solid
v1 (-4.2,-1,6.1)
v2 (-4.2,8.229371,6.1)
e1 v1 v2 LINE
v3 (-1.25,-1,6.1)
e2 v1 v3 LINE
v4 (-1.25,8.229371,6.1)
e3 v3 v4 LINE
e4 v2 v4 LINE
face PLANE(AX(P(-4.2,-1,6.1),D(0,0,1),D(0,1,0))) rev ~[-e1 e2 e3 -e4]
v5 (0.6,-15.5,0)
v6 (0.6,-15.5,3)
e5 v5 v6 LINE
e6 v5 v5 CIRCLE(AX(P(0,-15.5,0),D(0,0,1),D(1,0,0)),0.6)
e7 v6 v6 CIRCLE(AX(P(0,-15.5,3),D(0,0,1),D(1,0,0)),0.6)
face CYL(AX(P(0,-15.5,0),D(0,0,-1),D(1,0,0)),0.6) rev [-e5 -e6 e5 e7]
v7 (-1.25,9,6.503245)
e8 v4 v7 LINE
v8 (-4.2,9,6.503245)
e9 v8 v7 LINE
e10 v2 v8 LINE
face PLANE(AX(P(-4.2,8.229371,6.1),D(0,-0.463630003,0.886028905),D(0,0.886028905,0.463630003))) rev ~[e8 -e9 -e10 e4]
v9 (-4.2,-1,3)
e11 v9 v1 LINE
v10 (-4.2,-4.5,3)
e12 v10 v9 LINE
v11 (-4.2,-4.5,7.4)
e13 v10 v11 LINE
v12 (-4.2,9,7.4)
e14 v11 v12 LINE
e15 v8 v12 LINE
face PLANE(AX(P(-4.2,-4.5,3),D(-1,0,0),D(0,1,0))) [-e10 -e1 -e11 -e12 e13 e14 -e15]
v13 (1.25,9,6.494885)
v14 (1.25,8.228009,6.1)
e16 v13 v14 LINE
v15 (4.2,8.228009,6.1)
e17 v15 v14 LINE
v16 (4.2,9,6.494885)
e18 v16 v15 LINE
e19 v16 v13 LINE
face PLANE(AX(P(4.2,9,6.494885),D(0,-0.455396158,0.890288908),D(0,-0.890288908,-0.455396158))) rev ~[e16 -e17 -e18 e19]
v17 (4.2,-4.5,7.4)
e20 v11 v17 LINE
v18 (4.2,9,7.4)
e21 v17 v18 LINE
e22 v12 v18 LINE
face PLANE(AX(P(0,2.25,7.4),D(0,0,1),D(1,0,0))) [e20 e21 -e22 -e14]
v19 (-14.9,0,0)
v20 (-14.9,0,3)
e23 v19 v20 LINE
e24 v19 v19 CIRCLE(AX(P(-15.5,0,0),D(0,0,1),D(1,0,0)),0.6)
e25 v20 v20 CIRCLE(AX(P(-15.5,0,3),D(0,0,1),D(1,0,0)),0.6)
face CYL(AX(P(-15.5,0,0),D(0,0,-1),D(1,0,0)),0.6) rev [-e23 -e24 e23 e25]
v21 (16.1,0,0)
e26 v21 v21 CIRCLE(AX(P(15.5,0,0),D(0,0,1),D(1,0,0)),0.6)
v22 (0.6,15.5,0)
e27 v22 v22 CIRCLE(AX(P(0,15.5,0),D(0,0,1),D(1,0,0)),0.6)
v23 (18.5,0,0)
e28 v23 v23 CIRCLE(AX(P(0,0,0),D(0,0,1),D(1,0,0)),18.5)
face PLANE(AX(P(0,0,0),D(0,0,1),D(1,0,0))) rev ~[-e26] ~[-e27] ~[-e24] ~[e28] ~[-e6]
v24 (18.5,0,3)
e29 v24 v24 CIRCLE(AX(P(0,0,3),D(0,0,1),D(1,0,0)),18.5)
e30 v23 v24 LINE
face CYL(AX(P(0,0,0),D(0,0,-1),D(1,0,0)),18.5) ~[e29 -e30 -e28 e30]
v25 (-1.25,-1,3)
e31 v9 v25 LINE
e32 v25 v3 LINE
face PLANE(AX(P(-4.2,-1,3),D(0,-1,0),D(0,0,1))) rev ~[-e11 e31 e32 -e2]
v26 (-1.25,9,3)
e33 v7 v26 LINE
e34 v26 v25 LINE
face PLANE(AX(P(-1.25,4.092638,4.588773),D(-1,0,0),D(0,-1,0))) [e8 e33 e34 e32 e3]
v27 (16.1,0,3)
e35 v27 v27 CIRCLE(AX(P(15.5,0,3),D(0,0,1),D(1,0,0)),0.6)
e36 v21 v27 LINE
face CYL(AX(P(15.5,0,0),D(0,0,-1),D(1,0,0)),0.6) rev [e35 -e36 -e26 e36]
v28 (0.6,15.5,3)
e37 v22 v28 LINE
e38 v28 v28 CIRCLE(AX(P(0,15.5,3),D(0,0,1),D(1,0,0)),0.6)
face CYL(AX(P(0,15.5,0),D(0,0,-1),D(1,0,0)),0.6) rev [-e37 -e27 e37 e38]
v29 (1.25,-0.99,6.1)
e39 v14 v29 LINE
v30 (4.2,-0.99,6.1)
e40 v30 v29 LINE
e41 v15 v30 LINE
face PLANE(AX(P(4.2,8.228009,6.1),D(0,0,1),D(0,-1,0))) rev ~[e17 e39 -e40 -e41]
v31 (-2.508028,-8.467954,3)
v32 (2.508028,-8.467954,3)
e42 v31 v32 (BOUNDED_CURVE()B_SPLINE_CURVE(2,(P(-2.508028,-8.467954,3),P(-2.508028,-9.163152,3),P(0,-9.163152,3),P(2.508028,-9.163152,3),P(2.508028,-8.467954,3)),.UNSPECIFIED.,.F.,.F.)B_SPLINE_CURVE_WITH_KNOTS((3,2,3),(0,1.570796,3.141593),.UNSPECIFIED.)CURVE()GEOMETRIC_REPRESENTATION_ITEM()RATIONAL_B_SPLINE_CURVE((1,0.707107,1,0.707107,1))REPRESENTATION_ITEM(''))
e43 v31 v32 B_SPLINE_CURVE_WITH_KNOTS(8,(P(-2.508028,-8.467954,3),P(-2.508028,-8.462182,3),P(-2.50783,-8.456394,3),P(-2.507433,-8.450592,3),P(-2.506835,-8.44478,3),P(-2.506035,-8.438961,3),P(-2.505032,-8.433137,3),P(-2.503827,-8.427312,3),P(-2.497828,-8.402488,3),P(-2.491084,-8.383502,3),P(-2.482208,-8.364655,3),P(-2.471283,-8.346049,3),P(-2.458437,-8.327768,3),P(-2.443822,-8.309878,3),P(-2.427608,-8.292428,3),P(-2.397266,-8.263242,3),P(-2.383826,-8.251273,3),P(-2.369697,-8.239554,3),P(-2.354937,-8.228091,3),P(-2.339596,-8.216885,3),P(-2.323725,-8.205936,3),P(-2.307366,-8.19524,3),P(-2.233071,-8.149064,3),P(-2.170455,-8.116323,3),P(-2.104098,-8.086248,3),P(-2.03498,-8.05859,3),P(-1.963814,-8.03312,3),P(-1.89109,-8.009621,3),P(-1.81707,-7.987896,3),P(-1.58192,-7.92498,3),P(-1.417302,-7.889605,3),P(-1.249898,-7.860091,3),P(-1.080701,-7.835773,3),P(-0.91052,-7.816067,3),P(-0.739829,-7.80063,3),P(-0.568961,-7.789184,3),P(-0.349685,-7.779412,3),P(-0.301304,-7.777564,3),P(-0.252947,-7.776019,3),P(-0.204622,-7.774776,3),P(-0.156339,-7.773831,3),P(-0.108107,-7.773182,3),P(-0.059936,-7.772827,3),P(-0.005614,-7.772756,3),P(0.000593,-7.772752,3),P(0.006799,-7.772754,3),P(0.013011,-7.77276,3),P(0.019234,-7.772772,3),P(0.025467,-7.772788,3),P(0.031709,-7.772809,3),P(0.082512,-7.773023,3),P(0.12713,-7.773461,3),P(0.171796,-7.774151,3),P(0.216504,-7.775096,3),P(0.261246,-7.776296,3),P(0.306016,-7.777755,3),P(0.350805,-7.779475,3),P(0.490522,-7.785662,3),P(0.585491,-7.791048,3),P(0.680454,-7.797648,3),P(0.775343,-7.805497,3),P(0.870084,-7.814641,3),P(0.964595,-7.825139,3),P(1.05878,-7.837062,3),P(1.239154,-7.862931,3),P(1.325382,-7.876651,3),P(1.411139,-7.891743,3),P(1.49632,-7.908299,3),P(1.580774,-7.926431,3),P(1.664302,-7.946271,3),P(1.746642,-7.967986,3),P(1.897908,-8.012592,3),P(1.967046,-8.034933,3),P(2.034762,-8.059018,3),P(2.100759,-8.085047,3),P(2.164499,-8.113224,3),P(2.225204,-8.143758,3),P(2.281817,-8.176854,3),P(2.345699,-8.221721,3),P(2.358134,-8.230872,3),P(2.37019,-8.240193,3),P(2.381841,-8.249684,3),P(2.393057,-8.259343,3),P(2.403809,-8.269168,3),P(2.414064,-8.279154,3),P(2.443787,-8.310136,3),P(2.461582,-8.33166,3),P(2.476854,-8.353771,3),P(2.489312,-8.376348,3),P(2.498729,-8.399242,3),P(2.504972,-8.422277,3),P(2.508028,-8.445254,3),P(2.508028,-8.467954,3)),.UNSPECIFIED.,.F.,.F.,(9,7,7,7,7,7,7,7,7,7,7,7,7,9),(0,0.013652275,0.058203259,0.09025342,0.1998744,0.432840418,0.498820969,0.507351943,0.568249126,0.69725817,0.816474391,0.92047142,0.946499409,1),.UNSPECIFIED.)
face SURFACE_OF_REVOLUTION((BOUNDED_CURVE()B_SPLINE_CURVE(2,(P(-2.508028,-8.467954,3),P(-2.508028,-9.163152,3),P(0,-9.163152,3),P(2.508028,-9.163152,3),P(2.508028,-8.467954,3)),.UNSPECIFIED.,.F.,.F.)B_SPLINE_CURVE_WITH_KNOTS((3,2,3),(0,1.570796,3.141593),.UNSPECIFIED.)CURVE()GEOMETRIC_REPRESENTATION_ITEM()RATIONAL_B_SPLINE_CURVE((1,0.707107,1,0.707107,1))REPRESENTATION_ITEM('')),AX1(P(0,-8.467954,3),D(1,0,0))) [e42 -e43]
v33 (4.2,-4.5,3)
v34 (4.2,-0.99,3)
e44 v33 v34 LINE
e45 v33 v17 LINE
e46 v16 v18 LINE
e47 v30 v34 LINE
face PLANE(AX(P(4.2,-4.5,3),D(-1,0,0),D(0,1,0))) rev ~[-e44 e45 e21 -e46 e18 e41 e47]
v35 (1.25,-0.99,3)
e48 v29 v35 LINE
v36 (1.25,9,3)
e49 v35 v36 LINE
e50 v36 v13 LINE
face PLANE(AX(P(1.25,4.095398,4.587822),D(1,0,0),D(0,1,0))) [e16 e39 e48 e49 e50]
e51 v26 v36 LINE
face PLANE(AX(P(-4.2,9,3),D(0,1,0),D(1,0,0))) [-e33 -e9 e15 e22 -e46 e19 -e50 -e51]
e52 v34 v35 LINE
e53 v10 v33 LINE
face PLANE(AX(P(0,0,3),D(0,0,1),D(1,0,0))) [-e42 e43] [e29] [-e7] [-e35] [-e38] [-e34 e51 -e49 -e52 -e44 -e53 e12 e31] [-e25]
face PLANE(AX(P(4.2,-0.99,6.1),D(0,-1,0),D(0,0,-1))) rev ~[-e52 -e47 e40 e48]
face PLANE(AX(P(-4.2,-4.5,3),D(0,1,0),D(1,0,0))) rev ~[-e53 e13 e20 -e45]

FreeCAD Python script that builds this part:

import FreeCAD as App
import Part
import Sketcher


def add_polygon(sketch, points):
    """Adds a closed chain of lines whose ends are joined by coincident constraints."""
    first, n = sketch.GeometryCount, len(points)
    for a, b in zip(points, points[1:] + points[:1]):
        sketch.addGeometry(Part.LineSegment(App.Vector(*a, 0), App.Vector(*b, 0)), False)
    for i in range(n):
        sketch.addConstraint(Sketcher.Constraint("Coincident", first + i, 2, first + (i + 1) % n, 1))

doc = App.newDocument("Part")
body = doc.addObject("PartDesign::Body", "Body")

# Sketch on XY plane
sketch1 = body.newObject("Sketcher::SketchObject", "Sketch")
sketch1.AttachmentSupport = (doc.getObject("XY_Plane"), [""])
sketch1.MapMode = "FlatFace"
sketch1.addGeometry([
    Part.Circle(App.Vector(0, 0, 0), App.Vector(0, 0, 1), 18.5),  # 0
    Part.Circle(App.Vector(0, -15.5, 0), App.Vector(0, 0, 1), 0.6),  # 1
    Part.Circle(App.Vector(-15.5, 0, 0), App.Vector(0, 0, 1), 0.6),  # 2
    Part.Circle(App.Vector(0, 15.5, 0), App.Vector(0, 0, 1), 0.6),  # 3
    Part.Circle(App.Vector(15.5, 0, 0), App.Vector(0, 0, 1), 0.6),  # 4
], False)
sketch1.addConstraint([
    Sketcher.Constraint("Coincident", 0, 3, -1, 1),
    Sketcher.Constraint("Equal", 1, 2),
    Sketcher.Constraint("Equal", 2, 3),
    Sketcher.Constraint("Equal", 3, 4),
    Sketcher.Constraint("Symmetric", 1, 3, 3, 3, -1, 1),
    Sketcher.Constraint("Symmetric", 2, 3, 4, 3, -1, 1),
    Sketcher.Constraint("PointOnObject", 1, 3, -2),
    Sketcher.Constraint("PointOnObject", 2, 3, -1),
    Sketcher.Constraint("Diameter", 0, 37.0),
    Sketcher.Constraint("Diameter", 1, 1.2),
    Sketcher.Constraint("DistanceY", 1, 3, 3, 3, 31.0),
    Sketcher.Constraint("DistanceX", 2, 3, 4, 3, 31.0),
])
pad1 = body.newObject("PartDesign::Pad", "Pad")
pad1.Profile = sketch1
pad1.Length = 3

# Sketch on XY plane
sketch2 = body.newObject("Sketcher::SketchObject", "Sketch001")
sketch2.AttachmentSupport = (doc.getObject("XY_Plane"), [""])
sketch2.MapMode = "FlatFace"
sketch2.AttachmentOffset = App.Placement(App.Vector(0, 0, 3), App.Rotation())
add_polygon(sketch2, [(-4.2, 9), (-4.2, -4.5), (4.2, -4.5), (4.2, 9)])  # lines 0-3
sketch2.addConstraint([
    Sketcher.Constraint("Vertical", 0),
    Sketcher.Constraint("Horizontal", 1),
    Sketcher.Constraint("Vertical", 2),
    Sketcher.Constraint("Horizontal", 3),
    Sketcher.Constraint("DistanceX", 1, 1, 1, 2, 8.4),
    Sketcher.Constraint("DistanceY", 0, 2, 0, 1, 13.5),
    Sketcher.Constraint("DistanceY", -1, 1, 2, 2, 9.0),
    Sketcher.Constraint("DistanceX", 0, 2, -1, 1, 4.2),
])
pad2 = body.newObject("PartDesign::Pad", "Pad001")
pad2.Profile = sketch2
pad2.Length = 4.4

# Sketch on YZ plane
sketch3 = body.newObject("Sketcher::SketchObject", "Sketch002")
sketch3.AttachmentSupport = (doc.getObject("YZ_Plane"), [""])
sketch3.MapMode = "FlatFace"
sketch3.AttachmentOffset = App.Placement(App.Vector(0, 0, -4.2), App.Rotation())
add_polygon(sketch3, [(9, 3), (-1, 3), (-1, 6.1), (8.229371, 6.1), (9, 6.503245)])  # lines 0-4
sketch3.addConstraint([
    Sketcher.Constraint("Horizontal", 0),
    Sketcher.Constraint("Vertical", 1),
    Sketcher.Constraint("Horizontal", 2),
    Sketcher.Constraint("Vertical", 4),
    Sketcher.Constraint("DistanceX", 0, 2, 0, 1, 10.0),
    Sketcher.Constraint("DistanceY", 1, 1, 1, 2, 3.1),
    Sketcher.Constraint("DistanceX", 0, 2, -1, 1, 1.0),
    Sketcher.Constraint("DistanceY", -1, 1, 0, 2, 3.0),
    Sketcher.Constraint("DistanceX", 2, 1, 2, 2, 9.229371),
    Sketcher.Constraint("DistanceY", 4, 2, 4, 1, 3.503245),
])
pocket1 = body.newObject("PartDesign::Pocket", "Pocket")
pocket1.Profile = sketch3
pocket1.Length = 2.95
pocket1.Reversed = True

# Sketch on YZ plane
sketch4 = body.newObject("Sketcher::SketchObject", "Sketch003")
sketch4.AttachmentSupport = (doc.getObject("YZ_Plane"), [""])
sketch4.MapMode = "FlatFace"
sketch4.AttachmentOffset = App.Placement(App.Vector(0, 0, 4.2), App.Rotation())
add_polygon(sketch4, [(-0.99, 3), (9, 3), (9, 6.494885), (8.228009, 6.1), (-0.99, 6.1)])  # lines 0-4
sketch4.addConstraint([
    Sketcher.Constraint("Horizontal", 0),
    Sketcher.Constraint("Vertical", 1),
    Sketcher.Constraint("Horizontal", 3),
    Sketcher.Constraint("Vertical", 4),
    Sketcher.Constraint("DistanceY", 4, 2, 4, 1, 3.1),
    Sketcher.Constraint("DistanceX", -1, 1, 0, 2, 9.0),
    Sketcher.Constraint("DistanceY", -1, 1, 0, 2, 3.0),
    Sketcher.Constraint("DistanceX", 0, 1, 0, 2, 9.99),
    Sketcher.Constraint("DistanceX", 3, 2, 3, 1, 9.218009),
    Sketcher.Constraint("DistanceY", 1, 1, 1, 2, 3.494885),
])
pocket2 = body.newObject("PartDesign::Pocket", "Pocket001")
pocket2.Profile = sketch4
pocket2.Length = 2.95

# Sketch on XY plane
sketch5 = body.newObject("Sketcher::SketchObject", "Sketch004")
sketch5.AttachmentSupport = (doc.getObject("XY_Plane"), [""])
sketch5.MapMode = "FlatFace"
sketch5.AttachmentOffset = App.Placement(App.Vector(0, 0, 3), App.Rotation())
sketch5.addGeometry([
    Part.LineSegment(App.Vector(2.508028, -8.467954, 0), App.Vector(-2.508028, -8.467954, 0)),
    Part.BSplineCurve([App.Vector(-2.508028, -8.467954, 0), App.Vector(-2.508028, -9.163152, 0), App.Vector(0, -9.163152, 0), App.Vector(2.508028, -9.163152, 0), App.Vector(2.508028, -8.467954, 0)], [3, 2, 3], [0, 1.570796, 3.141593], False, 2, [1, 0.707107, 1, 0.707107, 1], False),
], False)
sketch5.addGeometry(Part.LineSegment(App.Vector(-2.508028, -8.467954, 0), App.Vector(2.508028, -8.467954, 0)), True)  # axis
sketch5.addConstraint([
    Sketcher.Constraint("Block", 1),
    Sketcher.Constraint("Coincident", 0, 1, 1, 2),
    Sketcher.Constraint("Coincident", 1, 1, 0, 2),
    Sketcher.Constraint("Horizontal", 2),
    Sketcher.Constraint("Coincident", 2, 2, 0, 1),
    Sketcher.Constraint("DistanceX", 2, 1, 2, 2, 5.016056),
])
revolution = body.newObject("PartDesign::Revolution", "Revolution")
revolution.Profile = sketch5
revolution.ReferenceAxis = (sketch5, ["Axis0"])
revolution.Angle = 360

doc.recompute()
